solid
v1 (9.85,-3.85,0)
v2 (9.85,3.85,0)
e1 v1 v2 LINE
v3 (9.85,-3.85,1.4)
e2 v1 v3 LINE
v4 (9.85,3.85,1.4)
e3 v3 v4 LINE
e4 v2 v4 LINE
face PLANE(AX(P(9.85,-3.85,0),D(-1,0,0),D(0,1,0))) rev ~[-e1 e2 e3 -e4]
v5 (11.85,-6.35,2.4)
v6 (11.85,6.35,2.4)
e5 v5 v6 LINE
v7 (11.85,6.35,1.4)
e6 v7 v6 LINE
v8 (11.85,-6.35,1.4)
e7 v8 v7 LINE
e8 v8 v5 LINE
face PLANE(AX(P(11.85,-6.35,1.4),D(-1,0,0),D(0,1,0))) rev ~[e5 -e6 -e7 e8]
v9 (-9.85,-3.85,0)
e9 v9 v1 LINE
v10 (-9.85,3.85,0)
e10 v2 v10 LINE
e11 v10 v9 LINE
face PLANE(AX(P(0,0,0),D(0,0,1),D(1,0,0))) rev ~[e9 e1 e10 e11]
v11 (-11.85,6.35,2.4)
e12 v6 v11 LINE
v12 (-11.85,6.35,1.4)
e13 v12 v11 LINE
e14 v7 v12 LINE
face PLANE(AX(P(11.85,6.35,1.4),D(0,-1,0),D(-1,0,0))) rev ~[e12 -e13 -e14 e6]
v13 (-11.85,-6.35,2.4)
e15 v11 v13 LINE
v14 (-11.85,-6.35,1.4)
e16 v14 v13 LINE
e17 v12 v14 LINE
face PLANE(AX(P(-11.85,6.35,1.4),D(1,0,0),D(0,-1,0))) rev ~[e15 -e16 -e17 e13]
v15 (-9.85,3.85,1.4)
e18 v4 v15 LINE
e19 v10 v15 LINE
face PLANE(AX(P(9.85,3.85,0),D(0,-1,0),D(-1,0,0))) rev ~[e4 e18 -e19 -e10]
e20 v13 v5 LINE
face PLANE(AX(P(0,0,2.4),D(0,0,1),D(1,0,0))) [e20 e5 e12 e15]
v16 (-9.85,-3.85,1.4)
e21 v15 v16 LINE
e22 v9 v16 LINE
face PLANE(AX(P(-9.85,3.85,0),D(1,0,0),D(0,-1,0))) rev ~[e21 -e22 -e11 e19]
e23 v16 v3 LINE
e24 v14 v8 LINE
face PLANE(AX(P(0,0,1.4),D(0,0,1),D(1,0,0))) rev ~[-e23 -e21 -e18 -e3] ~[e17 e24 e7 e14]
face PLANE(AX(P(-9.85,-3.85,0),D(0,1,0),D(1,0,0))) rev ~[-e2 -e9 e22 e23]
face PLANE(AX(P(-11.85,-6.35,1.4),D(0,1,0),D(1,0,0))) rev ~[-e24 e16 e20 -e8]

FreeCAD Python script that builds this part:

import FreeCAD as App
import Part
import Sketcher

doc = App.newDocument("Part")
params = doc.addObject("Spreadsheet::Sheet", "Params")
for row, (alias, value) in enumerate([
    ("sketch1_width", "19.7 mm"),
    ("sketch1_height", "7.7 mm"),
    ("pad1_length", "1.4 mm"),
    ("sketch2_width", "23.7 mm"),
    ("sketch2_height", "12.7 mm"),
    ("pad2_length", "1 mm"),
], start=1):
    params.set(f"A{row}", alias)
    params.set(f"B{row}", "=" + value)
    params.setAlias(f"B{row}", alias)

body = doc.addObject("PartDesign::Body", "Body")

# Sketch on XY plane
sketch1 = body.newObject("Sketcher::SketchObject", "Sketch")
sketch1.AttachmentSupport = (doc.getObject("XY_Plane"), [""])
sketch1.MapMode = "FlatFace"
sketch1.addGeometry(Part.LineSegment(App.Vector(-9.85, 3.85, 0), App.Vector(-9.85, -3.85, 0)), False)
sketch1.addGeometry(Part.LineSegment(App.Vector(-9.85, -3.85, 0), App.Vector(9.85, -3.85, 0)), False)
sketch1.addGeometry(Part.LineSegment(App.Vector(9.85, -3.85, 0), App.Vector(9.85, 3.85, 0)), False)
sketch1.addGeometry(Part.LineSegment(App.Vector(9.85, 3.85, 0), App.Vector(-9.85, 3.85, 0)), False)
sketch1.addConstraint(Sketcher.Constraint("Coincident", 0, 2, 1, 1))
sketch1.addConstraint(Sketcher.Constraint("Coincident", 1, 2, 2, 1))
sketch1.addConstraint(Sketcher.Constraint("Coincident", 2, 2, 3, 1))
sketch1.addConstraint(Sketcher.Constraint("Coincident", 3, 2, 0, 1))
sketch1.addConstraint(Sketcher.Constraint("Vertical", 0))
sketch1.addConstraint(Sketcher.Constraint("Horizontal", 1))
sketch1.addConstraint(Sketcher.Constraint("Vertical", 2))
sketch1.addConstraint(Sketcher.Constraint("Horizontal", 3))
sketch1.addConstraint(Sketcher.Constraint("Symmetric", 0, 2, 2, 2, -1, 1))
sketch1.addConstraint(Sketcher.Constraint("DistanceX", 1, 1, 1, 2, 19.7))
sketch1.addConstraint(Sketcher.Constraint("DistanceY", 0, 2, 0, 1, 7.7))
sketch1.setExpression("Constraints[9]", "Params.sketch1_width")
sketch1.setExpression("Constraints[10]", "Params.sketch1_height")
pad1 = body.newObject("PartDesign::Pad", "Pad")
pad1.Profile = sketch1
pad1.setExpression("Length", "Params.pad1_length")

# Sketch on XY plane
sketch2 = body.newObject("Sketcher::SketchObject", "Sketch001")
sketch2.AttachmentSupport = (doc.getObject("XY_Plane"), [""])
sketch2.MapMode = "FlatFace"
sketch2.AttachmentOffset = App.Placement(App.Vector(0, 0, 1.4), App.Rotation())
sketch2.addGeometry(Part.LineSegment(App.Vector(-11.85, 6.35, 0), App.Vector(-11.85, -6.35, 0)), False)
sketch2.addGeometry(Part.LineSegment(App.Vector(-11.85, -6.35, 0), App.Vector(11.85, -6.35, 0)), False)
sketch2.addGeometry(Part.LineSegment(App.Vector(11.85, -6.35, 0), App.Vector(11.85, 6.35, 0)), False)
sketch2.addGeometry(Part.LineSegment(App.Vector(11.85, 6.35, 0), App.Vector(-11.85, 6.35, 0)), False)
sketch2.addConstraint(Sketcher.Constraint("Coincident", 0, 2, 1, 1))
sketch2.addConstraint(Sketcher.Constraint("Coincident", 1, 2, 2, 1))
sketch2.addConstraint(Sketcher.Constraint("Coincident", 2, 2, 3, 1))
sketch2.addConstraint(Sketcher.Constraint("Coincident", 3, 2, 0, 1))
sketch2.addConstraint(Sketcher.Constraint("Vertical", 0))
sketch2.addConstraint(Sketcher.Constraint("Horizontal", 1))
sketch2.addConstraint(Sketcher.Constraint("Vertical", 2))
sketch2.addConstraint(Sketcher.Constraint("Horizontal", 3))
sketch2.addConstraint(Sketcher.Constraint("Symmetric", 0, 2, 2, 2, -1, 1))
sketch2.addConstraint(Sketcher.Constraint("DistanceX", 1, 1, 1, 2, 23.7))
sketch2.addConstraint(Sketcher.Constraint("DistanceY", 0, 2, 0, 1, 12.7))
sketch2.setExpression("Constraints[9]", "Params.sketch2_width")
sketch2.setExpression("Constraints[10]", "Params.sketch2_height")
pad2 = body.newObject("PartDesign::Pad", "Pad001")
pad2.Profile = sketch2
pad2.setExpression("Length", "Params.pad2_length")

doc.recompute()
